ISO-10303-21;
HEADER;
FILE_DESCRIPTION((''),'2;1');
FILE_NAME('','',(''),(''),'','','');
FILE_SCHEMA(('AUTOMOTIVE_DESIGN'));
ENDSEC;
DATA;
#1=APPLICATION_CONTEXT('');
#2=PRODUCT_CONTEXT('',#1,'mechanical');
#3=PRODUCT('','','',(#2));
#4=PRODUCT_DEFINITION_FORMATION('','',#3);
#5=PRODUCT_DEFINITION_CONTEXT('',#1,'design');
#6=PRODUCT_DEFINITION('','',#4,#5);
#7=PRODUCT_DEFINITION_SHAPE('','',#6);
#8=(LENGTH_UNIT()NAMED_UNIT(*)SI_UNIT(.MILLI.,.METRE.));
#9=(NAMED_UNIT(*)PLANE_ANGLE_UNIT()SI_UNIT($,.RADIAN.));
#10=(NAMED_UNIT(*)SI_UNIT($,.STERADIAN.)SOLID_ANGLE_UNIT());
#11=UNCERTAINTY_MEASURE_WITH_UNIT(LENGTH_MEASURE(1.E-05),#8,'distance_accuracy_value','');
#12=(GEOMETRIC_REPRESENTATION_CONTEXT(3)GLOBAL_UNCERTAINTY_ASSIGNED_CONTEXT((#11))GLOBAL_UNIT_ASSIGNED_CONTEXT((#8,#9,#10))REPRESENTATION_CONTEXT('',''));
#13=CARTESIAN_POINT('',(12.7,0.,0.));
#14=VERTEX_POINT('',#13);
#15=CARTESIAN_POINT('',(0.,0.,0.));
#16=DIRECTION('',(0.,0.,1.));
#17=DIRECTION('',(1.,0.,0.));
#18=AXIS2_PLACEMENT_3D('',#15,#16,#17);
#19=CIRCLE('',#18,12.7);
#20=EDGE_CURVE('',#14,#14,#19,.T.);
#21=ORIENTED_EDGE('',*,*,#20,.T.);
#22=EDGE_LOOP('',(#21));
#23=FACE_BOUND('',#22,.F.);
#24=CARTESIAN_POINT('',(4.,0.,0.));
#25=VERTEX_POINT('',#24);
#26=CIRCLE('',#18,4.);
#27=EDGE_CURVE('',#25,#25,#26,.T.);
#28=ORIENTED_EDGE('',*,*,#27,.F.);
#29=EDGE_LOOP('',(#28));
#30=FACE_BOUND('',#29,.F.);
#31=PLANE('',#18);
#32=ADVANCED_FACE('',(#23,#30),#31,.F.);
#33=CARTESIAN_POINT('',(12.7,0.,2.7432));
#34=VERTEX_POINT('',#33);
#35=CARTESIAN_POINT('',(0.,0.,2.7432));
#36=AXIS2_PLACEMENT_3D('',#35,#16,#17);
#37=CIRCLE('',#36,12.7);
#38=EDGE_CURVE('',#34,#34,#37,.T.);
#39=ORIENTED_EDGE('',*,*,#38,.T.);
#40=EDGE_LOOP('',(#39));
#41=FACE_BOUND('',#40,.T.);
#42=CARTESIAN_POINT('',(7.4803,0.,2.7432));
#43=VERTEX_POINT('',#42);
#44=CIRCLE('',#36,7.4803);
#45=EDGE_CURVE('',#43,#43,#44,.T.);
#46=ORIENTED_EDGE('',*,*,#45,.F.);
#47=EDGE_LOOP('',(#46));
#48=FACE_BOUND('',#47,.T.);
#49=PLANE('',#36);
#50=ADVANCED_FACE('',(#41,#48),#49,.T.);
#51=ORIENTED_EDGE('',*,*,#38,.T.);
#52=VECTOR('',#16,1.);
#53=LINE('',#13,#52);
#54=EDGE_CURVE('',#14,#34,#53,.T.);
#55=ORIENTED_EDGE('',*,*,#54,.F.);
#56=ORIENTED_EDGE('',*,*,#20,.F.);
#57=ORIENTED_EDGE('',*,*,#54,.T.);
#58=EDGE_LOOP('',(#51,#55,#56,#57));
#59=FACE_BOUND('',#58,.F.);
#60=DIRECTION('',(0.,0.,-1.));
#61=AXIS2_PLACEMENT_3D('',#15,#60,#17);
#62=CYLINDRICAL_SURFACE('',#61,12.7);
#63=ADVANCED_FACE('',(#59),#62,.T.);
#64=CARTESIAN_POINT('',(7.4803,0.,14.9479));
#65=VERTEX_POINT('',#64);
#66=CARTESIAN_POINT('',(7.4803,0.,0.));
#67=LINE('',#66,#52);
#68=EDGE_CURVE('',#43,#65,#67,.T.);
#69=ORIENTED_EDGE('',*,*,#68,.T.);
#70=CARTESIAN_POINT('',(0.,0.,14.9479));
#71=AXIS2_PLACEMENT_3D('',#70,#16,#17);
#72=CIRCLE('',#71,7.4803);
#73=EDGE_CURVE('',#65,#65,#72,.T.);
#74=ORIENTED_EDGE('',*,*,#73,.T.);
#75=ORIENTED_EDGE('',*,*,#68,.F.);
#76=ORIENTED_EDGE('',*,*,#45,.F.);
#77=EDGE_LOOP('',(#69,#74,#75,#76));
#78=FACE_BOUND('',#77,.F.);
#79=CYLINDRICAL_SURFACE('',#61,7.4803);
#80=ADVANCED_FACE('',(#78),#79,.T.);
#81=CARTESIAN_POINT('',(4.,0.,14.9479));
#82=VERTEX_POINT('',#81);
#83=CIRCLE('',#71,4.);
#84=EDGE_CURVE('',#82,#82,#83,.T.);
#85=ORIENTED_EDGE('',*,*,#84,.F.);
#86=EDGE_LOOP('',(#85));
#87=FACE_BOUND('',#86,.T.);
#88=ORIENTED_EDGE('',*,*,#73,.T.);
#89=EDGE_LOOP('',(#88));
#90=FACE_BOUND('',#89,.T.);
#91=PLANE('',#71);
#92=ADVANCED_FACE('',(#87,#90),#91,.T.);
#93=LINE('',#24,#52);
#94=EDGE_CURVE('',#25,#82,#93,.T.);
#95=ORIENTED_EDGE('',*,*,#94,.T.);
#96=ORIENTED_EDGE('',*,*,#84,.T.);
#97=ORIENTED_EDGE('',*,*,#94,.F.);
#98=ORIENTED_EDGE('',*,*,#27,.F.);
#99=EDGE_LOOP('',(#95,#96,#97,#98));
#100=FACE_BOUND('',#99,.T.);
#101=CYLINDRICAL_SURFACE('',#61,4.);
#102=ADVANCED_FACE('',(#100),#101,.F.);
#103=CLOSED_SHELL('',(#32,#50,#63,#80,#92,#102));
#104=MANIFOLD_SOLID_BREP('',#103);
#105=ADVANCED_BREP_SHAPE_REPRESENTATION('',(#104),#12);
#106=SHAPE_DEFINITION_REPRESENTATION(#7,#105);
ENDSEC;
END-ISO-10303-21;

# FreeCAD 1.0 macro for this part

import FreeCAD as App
import Part
import Sketcher

V = App.Vector
Q = App.Units.Quantity

doc = App.newDocument("Part")
body = doc.addObject("PartDesign::Body", "Body")

# Sketch on XY plane
sketch1 = doc.addObject("Sketcher::SketchObject", "Sketch")
body.addObject(sketch1)
sketch1.AttachmentSupport = (doc.XY_Plane, [""])
sketch1.MapMode = "FlatFace"
sketch1.addGeometry([
    Part.Circle(V(0, 0, 0), V(0, 0, 1), 7.4803),
    Part.Circle(V(0, 0, 0), V(0, 0, 1), 4),
], False)
sketch1.addConstraint([
    Sketcher.Constraint("Coincident", 0, 3, -1, 1),
    Sketcher.Constraint("Coincident", 1, 3, -1, 1),
    Sketcher.Constraint("Diameter", 0, Q("0.589 in")),
    Sketcher.Constraint("Diameter", 1, Q("8 mm")),
])
pad1 = doc.addObject("PartDesign::Pad", "Pad")
body.addObject(pad1)
pad1.Profile = sketch1
pad1.Length = Q("0.5885 in")

# Sketch on XY plane
sketch2 = doc.addObject("Sketcher::SketchObject", "Sketch001")
body.addObject(sketch2)
sketch2.AttachmentSupport = (doc.XY_Plane, [""])
sketch2.MapMode = "FlatFace"
sketch2.addGeometry([
    Part.Circle(V(0, 0, 0), V(0, 0, 1), 12.7),
    Part.Circle(V(0, 0, 0), V(0, 0, 1), 7.4803),
], False)
sketch2.addConstraint([
    Sketcher.Constraint("Coincident", 0, 3, -1, 1),
    Sketcher.Constraint("Coincident", 1, 3, -1, 1),
    Sketcher.Constraint("Diameter", 0, Q("1 in")),
    Sketcher.Constraint("Diameter", 1, Q("0.589 in")),
])
pad2 = doc.addObject("PartDesign::Pad", "Pad001")
body.addObject(pad2)
pad2.Profile = sketch2
pad2.Length = Q("0.108 in")

doc.recompute()
